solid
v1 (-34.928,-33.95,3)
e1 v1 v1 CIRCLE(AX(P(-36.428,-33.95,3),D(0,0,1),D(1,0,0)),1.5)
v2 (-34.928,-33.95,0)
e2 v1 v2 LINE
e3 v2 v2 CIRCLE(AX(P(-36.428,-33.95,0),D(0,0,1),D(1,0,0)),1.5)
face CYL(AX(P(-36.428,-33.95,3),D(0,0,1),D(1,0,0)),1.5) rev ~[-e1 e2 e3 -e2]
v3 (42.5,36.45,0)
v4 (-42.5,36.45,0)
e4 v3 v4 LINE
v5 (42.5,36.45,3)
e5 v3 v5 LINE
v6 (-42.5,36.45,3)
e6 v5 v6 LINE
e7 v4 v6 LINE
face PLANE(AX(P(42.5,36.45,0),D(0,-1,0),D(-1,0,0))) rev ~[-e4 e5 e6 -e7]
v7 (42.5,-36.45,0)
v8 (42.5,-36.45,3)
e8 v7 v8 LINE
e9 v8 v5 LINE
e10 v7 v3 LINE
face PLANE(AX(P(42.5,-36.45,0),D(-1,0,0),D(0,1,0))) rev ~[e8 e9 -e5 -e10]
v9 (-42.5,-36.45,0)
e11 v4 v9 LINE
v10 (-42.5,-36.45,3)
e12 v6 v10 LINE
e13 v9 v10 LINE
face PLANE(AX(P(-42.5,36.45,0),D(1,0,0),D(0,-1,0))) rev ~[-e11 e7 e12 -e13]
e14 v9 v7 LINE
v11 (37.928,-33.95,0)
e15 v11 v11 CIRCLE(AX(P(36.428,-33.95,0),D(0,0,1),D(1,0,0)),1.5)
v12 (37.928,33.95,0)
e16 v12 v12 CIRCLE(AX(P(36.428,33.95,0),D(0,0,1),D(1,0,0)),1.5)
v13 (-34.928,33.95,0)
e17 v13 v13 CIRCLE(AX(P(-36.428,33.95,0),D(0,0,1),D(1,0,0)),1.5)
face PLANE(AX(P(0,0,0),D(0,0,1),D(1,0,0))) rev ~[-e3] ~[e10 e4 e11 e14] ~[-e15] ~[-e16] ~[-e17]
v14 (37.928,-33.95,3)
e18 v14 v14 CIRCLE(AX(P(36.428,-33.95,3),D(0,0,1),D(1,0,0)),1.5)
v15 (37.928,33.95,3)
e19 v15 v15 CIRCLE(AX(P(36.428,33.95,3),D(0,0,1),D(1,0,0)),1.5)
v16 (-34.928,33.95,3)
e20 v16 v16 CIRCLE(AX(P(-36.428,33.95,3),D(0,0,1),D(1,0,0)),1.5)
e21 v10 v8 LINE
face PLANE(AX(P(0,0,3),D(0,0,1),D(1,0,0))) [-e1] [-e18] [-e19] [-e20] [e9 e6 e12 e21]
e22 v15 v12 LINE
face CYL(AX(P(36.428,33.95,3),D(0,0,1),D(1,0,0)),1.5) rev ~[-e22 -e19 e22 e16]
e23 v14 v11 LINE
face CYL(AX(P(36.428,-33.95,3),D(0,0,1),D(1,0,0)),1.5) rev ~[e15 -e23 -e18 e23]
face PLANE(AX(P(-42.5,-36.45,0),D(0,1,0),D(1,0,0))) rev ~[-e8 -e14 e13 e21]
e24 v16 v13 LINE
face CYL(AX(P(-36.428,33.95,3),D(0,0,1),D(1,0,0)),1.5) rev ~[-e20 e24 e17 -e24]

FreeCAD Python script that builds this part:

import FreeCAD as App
import Part
import Sketcher

V = App.Vector

doc = App.newDocument("Part")
body = doc.addObject("PartDesign::Body", "Body")

# Sketch on XY plane
sketch1 = body.newObject("Sketcher::SketchObject", "Sketch")
sketch1.AttachmentSupport = (doc.getObject("XY_Plane"), [""])
sketch1.MapMode = "FlatFace"
sketch1.addGeometry([
    Part.LineSegment(V(-42, 36, 0), V(-42, -36, 0)),
    Part.LineSegment(V(-42, -36, 0), V(42, -36, 0)),
    Part.LineSegment(V(42, -36, 0), V(42, 36, 0)),
    Part.LineSegment(V(42, 36, 0), V(-42, 36, 0)),
], False)
sketch1.addConstraint([
    Sketcher.Constraint("Coincident", 0, 2, 1, 1),
    Sketcher.Constraint("Coincident", 1, 2, 2, 1),
    Sketcher.Constraint("Coincident", 2, 2, 3, 1),
    Sketcher.Constraint("Coincident", 3, 2, 0, 1),
    Sketcher.Constraint("Vertical", 0),
    Sketcher.Constraint("Horizontal", 1),
    Sketcher.Constraint("Vertical", 2),
    Sketcher.Constraint("Horizontal", 3),
    Sketcher.Constraint("Symmetric", 0, 2, 2, 2, -1, 1),
    Sketcher.Constraint("DistanceX", 1, 1, 1, 2, 85.0),
    Sketcher.Constraint("DistanceY", 0, 2, 0, 1, 72.9),
])
pad1 = body.newObject("PartDesign::Pad", "Pad")
pad1.Profile = sketch1
pad1.Length = 3

# Sketch on XY plane
sketch2 = body.newObject("Sketcher::SketchObject", "Sketch001")
sketch2.AttachmentSupport = (doc.getObject("XY_Plane"), [""])
sketch2.MapMode = "FlatFace"
sketch2.AttachmentOffset = App.Placement(V(0, 0, 3), App.Rotation())
sketch2.addGeometry([
    Part.Circle(V(-36.4, 34, 0), V(0, 0, 1), 1.5),
    Part.Circle(V(36.4, 34, 0), V(0, 0, 1), 1.5),
    Part.Circle(V(-36.4, -34, 0), V(0, 0, 1), 1.5),
    Part.Circle(V(36.4, -34, 0), V(0, 0, 1), 1.5),
], False)
sketch2.addConstraint([
    Sketcher.Constraint("Equal", 0, 1),
    Sketcher.Constraint("Equal", 1, 2),
    Sketcher.Constraint("Equal", 2, 3),
    Sketcher.Constraint("Symmetric", 1, 3, 2, 3, -1, 1),
    Sketcher.Constraint("Symmetric", 0, 3, 3, 3, -1, 1),
    Sketcher.Constraint("Symmetric", 0, 3, 1, 3, -2),
    Sketcher.Constraint("Diameter", 0, 3.0),
    Sketcher.Constraint("DistanceY", 2, 3, 0, 3, 67.9),
    Sketcher.Constraint("DistanceX", 0, 3, -1, 1, 36.428),
])
pocket1 = body.newObject("PartDesign::Pocket", "Pocket")
pocket1.Profile = sketch2
pocket1.Length = 10

doc.recompute()
